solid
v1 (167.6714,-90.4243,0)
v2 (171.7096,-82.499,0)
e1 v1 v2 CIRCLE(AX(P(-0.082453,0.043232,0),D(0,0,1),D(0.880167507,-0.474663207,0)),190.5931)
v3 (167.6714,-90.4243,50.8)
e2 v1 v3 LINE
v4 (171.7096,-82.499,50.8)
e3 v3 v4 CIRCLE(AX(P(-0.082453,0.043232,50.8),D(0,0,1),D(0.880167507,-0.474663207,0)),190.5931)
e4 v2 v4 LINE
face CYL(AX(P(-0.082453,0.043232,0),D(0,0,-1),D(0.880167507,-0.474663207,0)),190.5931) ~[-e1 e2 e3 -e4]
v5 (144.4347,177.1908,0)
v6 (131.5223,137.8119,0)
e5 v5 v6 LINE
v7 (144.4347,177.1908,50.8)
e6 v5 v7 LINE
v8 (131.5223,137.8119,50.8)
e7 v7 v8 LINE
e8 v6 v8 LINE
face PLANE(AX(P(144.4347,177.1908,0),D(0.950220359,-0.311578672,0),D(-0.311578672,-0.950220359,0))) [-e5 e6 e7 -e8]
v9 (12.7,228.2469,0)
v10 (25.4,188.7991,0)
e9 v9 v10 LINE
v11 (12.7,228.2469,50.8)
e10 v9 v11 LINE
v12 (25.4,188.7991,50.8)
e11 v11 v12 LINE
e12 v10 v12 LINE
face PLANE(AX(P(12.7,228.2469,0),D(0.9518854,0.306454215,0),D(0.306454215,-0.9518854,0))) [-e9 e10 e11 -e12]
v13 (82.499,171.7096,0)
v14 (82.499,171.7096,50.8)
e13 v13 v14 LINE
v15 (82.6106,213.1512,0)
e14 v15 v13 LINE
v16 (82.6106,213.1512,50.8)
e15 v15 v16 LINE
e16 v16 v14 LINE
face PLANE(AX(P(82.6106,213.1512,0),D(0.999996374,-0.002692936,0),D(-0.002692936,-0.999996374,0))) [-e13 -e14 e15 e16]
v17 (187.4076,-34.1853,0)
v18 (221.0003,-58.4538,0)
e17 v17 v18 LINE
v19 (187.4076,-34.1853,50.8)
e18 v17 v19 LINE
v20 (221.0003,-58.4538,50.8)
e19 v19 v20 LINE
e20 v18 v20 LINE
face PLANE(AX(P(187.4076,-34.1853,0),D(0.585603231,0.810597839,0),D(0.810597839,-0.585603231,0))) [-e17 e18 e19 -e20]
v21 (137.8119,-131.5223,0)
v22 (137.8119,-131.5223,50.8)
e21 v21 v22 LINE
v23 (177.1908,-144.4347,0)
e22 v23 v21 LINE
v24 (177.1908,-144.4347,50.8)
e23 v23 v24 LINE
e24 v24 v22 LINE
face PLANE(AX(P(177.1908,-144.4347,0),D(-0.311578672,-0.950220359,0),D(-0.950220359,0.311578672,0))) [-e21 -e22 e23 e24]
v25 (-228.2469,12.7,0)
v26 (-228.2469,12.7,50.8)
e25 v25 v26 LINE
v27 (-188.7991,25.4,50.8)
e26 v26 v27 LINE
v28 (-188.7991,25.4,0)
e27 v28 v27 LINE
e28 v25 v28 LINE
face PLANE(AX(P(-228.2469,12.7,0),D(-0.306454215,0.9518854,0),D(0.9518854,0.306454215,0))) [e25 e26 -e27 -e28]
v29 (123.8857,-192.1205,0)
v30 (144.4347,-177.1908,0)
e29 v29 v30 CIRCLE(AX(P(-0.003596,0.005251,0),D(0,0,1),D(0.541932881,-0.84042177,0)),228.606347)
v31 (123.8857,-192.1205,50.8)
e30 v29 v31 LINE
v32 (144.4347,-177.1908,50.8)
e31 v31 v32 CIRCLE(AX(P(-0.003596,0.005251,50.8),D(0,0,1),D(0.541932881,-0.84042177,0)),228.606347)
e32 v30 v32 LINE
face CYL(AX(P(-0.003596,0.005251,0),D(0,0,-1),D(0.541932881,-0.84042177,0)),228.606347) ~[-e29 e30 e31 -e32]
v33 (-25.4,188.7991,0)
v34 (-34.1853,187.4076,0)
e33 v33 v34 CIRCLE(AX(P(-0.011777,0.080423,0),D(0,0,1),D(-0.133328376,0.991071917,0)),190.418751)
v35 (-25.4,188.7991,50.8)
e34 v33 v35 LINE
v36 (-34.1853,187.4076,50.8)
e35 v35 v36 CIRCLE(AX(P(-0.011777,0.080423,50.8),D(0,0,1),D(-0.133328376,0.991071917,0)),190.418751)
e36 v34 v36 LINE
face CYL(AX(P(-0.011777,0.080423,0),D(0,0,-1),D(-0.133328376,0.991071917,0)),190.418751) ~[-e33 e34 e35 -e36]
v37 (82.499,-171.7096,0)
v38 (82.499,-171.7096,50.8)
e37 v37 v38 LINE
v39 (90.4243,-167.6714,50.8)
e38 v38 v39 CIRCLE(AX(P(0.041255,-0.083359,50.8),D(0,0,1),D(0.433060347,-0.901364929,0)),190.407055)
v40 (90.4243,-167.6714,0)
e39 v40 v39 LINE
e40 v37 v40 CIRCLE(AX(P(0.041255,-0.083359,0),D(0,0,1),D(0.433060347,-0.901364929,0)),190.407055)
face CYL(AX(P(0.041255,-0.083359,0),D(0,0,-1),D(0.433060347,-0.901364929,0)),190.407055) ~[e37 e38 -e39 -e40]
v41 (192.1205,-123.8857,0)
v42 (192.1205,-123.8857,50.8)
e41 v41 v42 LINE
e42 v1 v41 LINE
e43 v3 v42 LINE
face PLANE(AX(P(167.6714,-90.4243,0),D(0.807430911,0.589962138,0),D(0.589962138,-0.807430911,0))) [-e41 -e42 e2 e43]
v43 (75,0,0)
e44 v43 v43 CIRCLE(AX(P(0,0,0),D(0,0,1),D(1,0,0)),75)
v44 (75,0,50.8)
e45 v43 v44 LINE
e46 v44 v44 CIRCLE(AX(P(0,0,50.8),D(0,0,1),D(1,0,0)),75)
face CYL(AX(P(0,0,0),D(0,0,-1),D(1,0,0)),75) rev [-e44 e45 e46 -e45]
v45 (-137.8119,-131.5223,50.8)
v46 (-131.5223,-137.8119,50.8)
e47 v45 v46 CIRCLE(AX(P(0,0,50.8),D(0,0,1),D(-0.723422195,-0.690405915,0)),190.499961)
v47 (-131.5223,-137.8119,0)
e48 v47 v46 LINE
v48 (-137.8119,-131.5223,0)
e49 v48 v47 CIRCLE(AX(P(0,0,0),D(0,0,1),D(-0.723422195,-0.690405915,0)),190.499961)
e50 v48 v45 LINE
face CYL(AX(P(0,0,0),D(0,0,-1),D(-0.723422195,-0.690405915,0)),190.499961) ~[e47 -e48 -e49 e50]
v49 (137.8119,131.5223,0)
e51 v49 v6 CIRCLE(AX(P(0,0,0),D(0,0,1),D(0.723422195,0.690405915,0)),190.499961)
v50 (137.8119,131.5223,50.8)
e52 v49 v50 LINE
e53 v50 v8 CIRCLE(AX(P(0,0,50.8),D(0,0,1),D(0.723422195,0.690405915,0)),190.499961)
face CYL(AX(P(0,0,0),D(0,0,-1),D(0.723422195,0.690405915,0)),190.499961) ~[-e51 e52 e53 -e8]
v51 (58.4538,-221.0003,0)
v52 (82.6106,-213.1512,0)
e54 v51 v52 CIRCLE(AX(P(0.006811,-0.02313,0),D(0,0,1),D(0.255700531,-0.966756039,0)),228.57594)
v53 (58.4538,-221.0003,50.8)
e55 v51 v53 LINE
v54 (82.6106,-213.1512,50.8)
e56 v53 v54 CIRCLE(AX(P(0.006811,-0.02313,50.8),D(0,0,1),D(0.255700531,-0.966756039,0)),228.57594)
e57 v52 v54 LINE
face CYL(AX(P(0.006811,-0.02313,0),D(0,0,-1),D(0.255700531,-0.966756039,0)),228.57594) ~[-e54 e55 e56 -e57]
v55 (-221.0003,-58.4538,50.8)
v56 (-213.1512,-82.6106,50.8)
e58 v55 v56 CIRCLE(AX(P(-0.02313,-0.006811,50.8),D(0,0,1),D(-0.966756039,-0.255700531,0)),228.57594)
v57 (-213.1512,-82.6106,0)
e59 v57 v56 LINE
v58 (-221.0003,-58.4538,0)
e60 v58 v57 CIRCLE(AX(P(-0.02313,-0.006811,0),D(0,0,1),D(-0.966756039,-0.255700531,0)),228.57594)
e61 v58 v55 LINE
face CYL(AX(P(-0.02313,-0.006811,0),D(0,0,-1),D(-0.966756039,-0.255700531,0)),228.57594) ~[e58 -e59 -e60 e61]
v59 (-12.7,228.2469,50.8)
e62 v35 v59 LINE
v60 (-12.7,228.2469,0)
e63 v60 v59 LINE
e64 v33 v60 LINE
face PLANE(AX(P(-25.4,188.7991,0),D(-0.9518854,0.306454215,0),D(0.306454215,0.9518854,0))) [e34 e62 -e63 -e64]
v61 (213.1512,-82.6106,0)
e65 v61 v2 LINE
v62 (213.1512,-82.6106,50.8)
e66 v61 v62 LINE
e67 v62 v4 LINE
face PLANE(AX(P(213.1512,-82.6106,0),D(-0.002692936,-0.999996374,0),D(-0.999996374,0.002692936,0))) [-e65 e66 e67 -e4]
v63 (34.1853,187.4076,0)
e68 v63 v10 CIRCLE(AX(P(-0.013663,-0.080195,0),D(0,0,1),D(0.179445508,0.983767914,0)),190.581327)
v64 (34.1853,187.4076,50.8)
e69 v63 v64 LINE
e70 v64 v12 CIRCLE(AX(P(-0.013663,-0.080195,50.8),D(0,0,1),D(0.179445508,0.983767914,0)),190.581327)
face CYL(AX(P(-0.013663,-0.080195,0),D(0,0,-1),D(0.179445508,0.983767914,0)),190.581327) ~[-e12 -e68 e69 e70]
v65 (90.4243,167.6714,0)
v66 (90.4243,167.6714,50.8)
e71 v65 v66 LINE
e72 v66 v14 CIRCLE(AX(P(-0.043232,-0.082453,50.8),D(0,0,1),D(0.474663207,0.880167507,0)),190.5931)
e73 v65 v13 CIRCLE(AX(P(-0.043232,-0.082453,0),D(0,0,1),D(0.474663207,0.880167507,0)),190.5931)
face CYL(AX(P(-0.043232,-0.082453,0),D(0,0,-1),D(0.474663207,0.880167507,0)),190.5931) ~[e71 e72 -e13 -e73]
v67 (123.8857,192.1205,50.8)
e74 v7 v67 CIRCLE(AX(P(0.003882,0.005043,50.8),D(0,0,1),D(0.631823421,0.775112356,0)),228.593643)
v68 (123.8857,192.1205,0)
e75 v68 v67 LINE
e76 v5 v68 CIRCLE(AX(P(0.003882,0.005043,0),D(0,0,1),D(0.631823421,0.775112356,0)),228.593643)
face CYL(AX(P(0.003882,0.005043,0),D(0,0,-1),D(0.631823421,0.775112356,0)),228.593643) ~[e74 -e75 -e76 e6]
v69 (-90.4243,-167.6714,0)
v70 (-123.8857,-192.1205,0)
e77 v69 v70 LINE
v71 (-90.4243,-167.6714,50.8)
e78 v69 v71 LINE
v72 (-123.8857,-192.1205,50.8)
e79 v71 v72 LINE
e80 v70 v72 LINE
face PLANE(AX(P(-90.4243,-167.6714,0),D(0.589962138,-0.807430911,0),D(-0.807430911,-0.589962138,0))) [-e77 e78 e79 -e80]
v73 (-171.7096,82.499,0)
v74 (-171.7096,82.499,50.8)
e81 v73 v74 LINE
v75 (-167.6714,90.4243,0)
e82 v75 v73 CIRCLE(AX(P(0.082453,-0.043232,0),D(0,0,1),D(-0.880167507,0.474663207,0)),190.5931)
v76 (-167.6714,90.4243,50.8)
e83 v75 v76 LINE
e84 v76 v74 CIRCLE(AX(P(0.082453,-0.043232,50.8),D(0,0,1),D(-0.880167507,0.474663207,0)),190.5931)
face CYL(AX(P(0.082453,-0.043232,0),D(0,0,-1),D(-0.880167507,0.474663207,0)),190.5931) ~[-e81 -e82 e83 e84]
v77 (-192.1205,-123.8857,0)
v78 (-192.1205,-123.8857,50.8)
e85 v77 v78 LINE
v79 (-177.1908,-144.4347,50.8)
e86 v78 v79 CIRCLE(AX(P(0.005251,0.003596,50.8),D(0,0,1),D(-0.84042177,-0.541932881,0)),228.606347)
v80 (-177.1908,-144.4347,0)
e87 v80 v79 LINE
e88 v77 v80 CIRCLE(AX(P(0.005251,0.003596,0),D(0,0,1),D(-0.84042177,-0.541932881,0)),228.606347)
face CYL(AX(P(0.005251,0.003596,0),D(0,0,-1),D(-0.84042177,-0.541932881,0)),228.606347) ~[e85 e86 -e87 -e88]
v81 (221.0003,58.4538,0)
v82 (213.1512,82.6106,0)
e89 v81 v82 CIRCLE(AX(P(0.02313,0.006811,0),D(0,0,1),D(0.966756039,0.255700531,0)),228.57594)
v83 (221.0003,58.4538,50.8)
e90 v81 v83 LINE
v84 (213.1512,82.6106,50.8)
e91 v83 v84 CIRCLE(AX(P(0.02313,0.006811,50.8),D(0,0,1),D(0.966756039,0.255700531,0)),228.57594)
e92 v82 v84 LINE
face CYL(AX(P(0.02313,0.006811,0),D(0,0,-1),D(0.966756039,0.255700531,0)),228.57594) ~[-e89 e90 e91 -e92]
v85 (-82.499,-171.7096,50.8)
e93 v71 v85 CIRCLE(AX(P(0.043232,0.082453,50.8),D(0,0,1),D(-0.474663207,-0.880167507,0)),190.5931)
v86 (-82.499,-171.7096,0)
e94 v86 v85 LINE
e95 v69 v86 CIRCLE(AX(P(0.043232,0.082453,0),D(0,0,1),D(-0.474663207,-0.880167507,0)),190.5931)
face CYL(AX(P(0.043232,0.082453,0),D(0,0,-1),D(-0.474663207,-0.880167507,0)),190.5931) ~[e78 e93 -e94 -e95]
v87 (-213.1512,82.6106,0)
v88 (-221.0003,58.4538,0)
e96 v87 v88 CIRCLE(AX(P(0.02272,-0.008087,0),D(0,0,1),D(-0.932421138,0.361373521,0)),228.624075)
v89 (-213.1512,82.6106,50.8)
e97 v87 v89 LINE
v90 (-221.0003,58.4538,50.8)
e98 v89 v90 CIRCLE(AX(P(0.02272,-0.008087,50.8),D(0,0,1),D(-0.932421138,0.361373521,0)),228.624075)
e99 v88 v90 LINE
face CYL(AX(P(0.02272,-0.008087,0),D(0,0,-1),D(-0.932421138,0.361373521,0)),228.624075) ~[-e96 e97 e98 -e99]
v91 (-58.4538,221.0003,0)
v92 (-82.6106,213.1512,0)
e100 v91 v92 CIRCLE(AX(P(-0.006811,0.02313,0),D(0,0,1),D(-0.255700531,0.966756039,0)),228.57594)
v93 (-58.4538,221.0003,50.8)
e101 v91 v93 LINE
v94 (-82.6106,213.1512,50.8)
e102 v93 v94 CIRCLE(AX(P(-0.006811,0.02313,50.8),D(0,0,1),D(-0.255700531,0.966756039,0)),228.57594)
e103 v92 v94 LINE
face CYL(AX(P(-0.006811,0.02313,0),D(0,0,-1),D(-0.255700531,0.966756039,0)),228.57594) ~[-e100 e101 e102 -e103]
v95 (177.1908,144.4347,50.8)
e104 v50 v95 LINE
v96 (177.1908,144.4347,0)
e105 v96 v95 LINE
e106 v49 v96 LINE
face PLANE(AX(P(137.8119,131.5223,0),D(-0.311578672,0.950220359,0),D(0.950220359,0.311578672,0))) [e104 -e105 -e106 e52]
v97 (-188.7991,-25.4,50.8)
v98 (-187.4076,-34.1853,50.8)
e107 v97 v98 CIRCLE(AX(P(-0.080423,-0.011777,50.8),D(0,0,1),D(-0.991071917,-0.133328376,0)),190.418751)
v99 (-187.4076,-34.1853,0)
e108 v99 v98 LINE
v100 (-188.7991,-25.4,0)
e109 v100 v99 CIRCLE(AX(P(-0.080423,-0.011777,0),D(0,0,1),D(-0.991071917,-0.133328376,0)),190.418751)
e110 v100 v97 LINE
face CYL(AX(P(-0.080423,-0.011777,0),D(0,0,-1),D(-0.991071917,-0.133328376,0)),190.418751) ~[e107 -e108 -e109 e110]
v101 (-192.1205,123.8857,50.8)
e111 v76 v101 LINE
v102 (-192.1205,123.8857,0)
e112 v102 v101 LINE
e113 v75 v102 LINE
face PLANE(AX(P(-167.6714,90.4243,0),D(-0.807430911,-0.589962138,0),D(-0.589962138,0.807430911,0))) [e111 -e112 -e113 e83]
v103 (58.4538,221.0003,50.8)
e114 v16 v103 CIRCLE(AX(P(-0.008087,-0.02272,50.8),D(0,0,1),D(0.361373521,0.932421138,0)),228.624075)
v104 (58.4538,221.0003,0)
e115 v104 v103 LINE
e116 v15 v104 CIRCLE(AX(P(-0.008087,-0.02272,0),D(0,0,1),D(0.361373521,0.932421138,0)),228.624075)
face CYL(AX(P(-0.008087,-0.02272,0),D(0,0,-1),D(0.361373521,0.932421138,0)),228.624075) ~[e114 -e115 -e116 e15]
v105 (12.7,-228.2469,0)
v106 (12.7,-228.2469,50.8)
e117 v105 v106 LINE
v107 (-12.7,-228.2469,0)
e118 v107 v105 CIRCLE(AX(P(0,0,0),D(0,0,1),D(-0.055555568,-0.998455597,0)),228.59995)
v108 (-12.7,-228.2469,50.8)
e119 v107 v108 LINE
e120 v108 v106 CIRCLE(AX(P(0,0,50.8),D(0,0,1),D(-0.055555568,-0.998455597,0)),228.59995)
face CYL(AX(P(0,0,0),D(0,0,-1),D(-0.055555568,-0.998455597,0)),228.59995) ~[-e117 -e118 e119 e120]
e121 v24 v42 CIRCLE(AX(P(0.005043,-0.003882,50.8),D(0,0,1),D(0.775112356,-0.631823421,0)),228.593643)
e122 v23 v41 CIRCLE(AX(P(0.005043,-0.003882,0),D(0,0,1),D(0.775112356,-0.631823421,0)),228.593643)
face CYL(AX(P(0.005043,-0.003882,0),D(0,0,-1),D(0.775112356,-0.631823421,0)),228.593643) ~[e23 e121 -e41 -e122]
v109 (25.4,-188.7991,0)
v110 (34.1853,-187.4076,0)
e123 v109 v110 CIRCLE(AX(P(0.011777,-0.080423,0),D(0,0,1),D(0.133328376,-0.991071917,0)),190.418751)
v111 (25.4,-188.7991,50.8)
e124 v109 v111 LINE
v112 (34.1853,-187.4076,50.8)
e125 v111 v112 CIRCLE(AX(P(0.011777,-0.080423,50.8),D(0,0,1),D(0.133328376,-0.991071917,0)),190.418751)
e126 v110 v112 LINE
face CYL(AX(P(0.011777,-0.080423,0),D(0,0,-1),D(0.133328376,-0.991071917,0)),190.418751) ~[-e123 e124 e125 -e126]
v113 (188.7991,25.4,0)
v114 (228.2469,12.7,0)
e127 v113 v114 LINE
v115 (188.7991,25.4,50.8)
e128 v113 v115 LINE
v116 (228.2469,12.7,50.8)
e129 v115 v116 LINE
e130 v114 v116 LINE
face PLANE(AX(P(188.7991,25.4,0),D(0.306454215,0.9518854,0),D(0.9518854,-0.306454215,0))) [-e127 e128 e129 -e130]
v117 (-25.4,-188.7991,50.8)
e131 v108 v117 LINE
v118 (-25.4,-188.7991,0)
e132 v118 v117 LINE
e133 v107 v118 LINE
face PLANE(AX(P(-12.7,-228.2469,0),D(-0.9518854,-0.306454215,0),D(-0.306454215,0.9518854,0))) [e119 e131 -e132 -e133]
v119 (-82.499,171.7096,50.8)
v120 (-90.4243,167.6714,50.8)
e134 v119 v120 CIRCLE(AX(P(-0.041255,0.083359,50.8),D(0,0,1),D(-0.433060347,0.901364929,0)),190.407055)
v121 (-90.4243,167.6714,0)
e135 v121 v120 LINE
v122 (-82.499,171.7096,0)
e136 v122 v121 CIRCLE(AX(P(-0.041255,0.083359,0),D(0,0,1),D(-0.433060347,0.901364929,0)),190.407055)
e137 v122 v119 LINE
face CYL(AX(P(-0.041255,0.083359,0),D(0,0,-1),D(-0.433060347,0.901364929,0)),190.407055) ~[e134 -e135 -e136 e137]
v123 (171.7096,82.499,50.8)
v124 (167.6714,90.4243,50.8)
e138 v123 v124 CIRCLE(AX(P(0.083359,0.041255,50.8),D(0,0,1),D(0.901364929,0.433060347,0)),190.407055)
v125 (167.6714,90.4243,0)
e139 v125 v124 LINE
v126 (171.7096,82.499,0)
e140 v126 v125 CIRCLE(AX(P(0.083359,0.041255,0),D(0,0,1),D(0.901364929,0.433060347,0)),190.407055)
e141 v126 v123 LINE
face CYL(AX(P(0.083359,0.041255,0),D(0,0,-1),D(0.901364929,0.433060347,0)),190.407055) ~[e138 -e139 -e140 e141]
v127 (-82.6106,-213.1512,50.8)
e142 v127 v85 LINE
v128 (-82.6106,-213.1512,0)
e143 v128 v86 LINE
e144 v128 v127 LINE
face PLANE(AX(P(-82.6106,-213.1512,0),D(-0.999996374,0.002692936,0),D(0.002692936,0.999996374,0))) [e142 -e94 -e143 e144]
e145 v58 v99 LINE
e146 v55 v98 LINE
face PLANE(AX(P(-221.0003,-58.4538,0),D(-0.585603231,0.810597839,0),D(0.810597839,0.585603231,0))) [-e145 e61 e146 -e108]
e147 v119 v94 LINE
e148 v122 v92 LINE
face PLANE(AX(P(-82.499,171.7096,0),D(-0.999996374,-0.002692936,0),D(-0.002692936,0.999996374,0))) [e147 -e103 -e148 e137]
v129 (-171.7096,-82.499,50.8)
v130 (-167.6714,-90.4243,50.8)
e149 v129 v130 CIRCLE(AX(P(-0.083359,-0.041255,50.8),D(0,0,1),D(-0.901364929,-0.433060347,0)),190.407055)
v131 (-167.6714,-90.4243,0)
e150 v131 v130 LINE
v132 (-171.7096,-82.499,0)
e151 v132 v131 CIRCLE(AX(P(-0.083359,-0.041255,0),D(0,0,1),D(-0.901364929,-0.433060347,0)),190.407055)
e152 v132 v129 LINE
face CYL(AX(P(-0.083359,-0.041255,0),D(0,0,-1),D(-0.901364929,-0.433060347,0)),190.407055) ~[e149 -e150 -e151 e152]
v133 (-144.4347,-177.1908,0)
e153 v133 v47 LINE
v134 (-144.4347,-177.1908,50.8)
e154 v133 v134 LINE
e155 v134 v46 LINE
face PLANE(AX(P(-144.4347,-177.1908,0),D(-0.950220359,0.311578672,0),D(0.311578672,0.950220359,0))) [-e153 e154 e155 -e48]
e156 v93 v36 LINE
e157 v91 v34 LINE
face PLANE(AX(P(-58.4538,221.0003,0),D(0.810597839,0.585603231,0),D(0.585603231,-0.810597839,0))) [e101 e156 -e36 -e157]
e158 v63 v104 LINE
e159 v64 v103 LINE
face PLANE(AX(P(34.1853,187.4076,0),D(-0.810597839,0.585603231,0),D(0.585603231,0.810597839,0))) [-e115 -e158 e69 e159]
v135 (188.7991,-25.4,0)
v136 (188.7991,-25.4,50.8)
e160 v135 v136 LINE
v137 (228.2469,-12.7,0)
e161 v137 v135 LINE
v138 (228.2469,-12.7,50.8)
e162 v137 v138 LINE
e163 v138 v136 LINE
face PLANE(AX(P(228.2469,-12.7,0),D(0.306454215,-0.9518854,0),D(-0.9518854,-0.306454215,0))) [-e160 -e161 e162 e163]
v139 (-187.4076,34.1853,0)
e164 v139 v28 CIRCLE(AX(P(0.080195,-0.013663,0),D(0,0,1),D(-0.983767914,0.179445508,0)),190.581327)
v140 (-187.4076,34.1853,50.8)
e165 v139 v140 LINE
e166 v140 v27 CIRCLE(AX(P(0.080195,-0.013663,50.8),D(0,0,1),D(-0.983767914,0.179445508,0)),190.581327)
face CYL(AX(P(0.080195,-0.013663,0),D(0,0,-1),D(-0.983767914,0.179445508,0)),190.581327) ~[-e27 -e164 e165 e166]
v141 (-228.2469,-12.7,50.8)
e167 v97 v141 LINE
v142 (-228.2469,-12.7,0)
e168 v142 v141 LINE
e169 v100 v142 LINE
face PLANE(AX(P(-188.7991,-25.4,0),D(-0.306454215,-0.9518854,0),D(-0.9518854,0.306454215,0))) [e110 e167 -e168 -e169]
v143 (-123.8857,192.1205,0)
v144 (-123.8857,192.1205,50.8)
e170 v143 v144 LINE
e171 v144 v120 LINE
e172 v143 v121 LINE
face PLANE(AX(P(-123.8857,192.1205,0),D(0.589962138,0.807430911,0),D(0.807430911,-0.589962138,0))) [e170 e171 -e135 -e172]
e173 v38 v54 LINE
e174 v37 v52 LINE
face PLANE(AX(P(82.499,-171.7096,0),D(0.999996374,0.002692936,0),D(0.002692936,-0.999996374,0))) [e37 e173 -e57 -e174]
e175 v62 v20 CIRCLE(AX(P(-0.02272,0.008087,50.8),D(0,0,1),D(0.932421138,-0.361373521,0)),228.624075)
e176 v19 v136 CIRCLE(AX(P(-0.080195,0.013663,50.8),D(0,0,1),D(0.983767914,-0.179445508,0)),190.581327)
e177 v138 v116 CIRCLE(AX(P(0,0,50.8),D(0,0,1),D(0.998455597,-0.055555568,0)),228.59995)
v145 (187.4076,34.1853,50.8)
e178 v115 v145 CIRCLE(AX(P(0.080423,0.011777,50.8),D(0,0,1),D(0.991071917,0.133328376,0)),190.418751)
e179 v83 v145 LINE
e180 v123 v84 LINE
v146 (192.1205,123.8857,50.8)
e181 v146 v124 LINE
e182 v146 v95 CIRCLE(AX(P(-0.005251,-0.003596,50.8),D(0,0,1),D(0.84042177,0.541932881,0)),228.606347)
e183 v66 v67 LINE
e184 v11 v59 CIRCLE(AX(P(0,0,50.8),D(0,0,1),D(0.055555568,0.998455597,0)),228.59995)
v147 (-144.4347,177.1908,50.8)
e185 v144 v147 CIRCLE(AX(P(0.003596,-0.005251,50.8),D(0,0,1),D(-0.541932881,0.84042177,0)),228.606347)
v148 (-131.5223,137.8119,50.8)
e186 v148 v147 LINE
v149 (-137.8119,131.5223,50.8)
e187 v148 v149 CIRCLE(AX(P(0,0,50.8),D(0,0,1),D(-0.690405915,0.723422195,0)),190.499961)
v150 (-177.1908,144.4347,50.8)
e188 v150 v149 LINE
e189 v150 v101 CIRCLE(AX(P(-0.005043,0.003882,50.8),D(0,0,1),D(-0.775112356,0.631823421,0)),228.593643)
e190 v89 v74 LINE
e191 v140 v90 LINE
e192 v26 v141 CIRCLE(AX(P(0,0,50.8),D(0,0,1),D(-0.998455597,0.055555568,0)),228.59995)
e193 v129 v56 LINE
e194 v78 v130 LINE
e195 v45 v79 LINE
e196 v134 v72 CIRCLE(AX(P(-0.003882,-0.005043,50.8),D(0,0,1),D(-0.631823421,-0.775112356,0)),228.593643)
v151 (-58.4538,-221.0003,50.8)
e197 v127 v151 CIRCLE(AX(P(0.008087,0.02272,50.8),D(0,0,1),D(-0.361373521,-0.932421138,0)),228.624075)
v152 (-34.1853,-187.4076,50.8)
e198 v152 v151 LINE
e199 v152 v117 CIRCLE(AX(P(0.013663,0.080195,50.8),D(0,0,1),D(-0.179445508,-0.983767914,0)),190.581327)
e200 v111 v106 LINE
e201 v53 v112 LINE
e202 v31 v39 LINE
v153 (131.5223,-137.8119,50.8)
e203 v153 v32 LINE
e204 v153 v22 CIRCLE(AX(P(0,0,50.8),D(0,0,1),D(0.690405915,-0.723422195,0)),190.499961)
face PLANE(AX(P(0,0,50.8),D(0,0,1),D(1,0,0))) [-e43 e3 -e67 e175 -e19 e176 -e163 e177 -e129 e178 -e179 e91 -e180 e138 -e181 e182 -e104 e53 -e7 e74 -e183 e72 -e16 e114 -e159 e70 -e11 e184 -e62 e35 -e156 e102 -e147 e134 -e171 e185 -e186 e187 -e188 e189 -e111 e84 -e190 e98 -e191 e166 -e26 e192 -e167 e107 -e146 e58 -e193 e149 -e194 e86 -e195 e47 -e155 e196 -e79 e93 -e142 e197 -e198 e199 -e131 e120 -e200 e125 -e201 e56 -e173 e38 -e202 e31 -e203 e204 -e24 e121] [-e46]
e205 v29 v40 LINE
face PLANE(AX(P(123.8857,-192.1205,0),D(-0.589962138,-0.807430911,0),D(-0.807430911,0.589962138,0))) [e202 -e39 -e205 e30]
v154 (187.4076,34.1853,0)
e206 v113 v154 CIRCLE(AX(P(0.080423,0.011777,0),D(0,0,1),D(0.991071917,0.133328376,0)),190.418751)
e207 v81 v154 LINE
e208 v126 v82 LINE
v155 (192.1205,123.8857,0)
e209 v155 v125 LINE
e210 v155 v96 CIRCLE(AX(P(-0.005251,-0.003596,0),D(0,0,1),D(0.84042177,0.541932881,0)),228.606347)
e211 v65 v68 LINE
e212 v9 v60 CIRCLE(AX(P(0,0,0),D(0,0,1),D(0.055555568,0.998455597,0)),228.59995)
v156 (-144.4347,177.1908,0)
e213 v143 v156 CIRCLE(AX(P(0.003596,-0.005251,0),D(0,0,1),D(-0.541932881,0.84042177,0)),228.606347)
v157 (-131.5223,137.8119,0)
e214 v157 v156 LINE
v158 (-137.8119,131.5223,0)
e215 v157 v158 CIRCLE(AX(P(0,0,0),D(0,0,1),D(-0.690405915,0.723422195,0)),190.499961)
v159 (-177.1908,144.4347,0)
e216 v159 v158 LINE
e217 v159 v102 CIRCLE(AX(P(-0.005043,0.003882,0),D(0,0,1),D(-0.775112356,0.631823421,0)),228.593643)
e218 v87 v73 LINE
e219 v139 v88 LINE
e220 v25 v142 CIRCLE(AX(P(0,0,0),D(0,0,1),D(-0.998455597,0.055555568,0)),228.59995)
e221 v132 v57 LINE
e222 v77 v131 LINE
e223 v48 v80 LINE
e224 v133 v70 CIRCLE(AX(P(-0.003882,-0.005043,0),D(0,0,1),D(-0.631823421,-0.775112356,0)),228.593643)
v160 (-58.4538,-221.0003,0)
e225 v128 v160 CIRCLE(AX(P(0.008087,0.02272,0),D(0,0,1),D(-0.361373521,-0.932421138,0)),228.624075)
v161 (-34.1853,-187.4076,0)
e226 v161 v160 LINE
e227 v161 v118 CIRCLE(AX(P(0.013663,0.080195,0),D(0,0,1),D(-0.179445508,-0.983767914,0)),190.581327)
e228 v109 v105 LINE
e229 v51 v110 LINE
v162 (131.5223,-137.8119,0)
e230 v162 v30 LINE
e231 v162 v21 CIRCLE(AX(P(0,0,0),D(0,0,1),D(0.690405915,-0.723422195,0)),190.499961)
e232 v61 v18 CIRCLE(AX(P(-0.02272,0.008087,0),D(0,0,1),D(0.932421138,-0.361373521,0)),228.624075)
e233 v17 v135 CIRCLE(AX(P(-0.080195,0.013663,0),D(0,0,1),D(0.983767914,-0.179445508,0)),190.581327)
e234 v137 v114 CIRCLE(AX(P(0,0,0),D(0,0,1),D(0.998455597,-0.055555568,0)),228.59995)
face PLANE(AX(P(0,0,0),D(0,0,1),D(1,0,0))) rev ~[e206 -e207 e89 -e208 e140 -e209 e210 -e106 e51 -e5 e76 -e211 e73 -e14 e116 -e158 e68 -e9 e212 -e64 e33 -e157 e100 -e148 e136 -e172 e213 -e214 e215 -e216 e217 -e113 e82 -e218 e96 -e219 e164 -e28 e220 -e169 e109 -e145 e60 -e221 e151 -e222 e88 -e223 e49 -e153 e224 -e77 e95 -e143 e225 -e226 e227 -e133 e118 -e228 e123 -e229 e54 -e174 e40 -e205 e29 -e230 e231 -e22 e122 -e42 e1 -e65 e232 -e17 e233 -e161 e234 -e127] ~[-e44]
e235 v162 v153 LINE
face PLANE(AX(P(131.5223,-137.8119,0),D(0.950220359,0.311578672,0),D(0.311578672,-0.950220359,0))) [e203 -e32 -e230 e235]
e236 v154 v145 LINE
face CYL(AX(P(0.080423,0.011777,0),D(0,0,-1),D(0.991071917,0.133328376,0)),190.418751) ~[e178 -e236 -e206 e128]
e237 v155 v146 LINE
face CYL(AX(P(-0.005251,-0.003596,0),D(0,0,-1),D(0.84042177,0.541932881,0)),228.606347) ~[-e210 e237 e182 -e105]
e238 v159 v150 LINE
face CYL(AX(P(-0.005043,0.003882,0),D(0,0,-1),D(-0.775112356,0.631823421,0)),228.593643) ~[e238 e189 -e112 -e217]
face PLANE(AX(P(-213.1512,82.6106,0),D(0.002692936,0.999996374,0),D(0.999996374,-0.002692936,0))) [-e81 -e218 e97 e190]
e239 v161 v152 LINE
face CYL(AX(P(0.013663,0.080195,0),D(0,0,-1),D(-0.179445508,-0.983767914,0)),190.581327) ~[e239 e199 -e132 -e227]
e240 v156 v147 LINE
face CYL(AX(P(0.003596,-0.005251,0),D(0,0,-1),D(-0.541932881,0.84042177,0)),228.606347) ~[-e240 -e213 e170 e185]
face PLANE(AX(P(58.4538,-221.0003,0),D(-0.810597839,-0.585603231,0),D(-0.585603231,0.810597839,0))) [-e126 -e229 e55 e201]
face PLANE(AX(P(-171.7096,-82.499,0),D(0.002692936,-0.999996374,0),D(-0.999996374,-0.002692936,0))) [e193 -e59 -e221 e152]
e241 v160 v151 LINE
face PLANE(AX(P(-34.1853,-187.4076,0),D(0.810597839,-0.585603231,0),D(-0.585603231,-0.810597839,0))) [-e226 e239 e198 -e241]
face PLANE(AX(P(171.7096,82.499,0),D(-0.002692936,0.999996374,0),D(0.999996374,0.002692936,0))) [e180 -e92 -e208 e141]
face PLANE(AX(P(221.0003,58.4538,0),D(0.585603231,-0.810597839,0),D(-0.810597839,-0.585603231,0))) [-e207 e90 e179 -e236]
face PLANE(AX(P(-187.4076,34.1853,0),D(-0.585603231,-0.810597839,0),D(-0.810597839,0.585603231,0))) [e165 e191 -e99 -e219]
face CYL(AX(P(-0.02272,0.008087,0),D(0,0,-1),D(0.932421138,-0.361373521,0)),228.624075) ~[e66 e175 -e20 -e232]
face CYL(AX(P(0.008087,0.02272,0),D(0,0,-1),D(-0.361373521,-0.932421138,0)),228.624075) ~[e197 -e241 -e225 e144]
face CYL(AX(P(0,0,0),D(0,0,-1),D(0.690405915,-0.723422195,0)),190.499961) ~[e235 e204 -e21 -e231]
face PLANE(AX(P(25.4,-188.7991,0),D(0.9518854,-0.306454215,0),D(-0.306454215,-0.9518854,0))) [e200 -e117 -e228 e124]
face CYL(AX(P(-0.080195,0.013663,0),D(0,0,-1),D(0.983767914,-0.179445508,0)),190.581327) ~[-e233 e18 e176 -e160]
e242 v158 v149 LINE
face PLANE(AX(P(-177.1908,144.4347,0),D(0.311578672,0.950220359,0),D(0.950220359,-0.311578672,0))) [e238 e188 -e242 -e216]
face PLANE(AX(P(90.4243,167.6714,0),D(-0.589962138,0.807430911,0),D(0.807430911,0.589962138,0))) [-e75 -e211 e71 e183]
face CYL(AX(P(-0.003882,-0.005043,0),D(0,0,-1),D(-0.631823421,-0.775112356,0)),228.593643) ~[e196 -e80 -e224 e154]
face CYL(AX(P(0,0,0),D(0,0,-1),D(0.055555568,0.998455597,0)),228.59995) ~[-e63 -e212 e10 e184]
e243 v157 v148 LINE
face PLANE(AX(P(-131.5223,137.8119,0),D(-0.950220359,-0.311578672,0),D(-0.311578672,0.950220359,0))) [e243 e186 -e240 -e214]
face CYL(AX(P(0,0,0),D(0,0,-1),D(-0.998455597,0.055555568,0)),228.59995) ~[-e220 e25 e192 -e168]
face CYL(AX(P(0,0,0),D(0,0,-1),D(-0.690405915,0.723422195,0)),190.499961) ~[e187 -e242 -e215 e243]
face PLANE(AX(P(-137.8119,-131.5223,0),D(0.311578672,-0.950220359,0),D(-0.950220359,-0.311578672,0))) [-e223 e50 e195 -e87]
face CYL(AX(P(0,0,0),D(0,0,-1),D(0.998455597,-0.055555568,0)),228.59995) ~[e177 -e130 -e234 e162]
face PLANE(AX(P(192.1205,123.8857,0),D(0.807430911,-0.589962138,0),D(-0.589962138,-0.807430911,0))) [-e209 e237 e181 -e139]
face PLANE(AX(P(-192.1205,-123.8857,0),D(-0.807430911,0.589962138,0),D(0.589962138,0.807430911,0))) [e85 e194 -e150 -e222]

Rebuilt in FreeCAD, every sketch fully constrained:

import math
import FreeCAD as App
import Part
import Sketcher
Q = App.Units.Quantity

doc = App.newDocument("Part")
params = doc.addObject("Spreadsheet::Sheet", "Params")
for row, (alias, value) in enumerate([
    ("sketch1_radius", "9 in"),
    ("sketch1_radius2", "7.5 in"),
    ("pad1_length", "2 in"),
], start=1):
    params.set(f"A{row}", alias)
    params.set(f"B{row}", "=" + value)
    params.setAlias(f"B{row}", alias)

body = doc.addObject("PartDesign::Body", "Body")

# Sketch on XY plane
sketch1 = doc.addObject("Sketcher::SketchObject", "Sketch")
body.addObject(sketch1)
sketch1.AttachmentSupport = (doc.XY_Plane, [""])
sketch1.MapMode = "FlatFace"
sketch1.addGeometry([
    Part.LineSegment(App.Vector(25.4, 188.7991, 0), App.Vector(12.7, 228.2469, 0)),  # 0
    Part.ArcOfCircle(Part.Circle(App.Vector(0, 0, 0), App.Vector(0, 0, 1), 228.59995), math.radians(86.815261), math.radians(93.184739)),  # 1
    Part.LineSegment(App.Vector(-12.7, 228.2469, 0), App.Vector(-25.4, 188.7991, 0)),  # 2
    Part.ArcOfCircle(Part.Circle(App.Vector(-0.011777, 0.080423, 0), App.Vector(0, 0, 1), 190.418751), math.radians(97.661969), math.radians(100.338606)),  # 3
    Part.LineSegment(App.Vector(-34.1853, 187.4076, 0), App.Vector(-58.4538, 221.0003, 0)),  # 4
    Part.ArcOfCircle(Part.Circle(App.Vector(-0.006811, 0.02313, 0), App.Vector(0, 0, 1), 228.57594), math.radians(104.815099), math.radians(111.185244)),  # 5
    Part.LineSegment(App.Vector(-82.6106, 213.1512, 0), App.Vector(-82.499, 171.7096, 0)),  # 6
    Part.ArcOfCircle(Part.Circle(App.Vector(-0.041255, 0.083359, 0), App.Vector(0, 0, 1), 190.407055), math.radians(115.661935), math.radians(118.33873)),  # 7
    Part.LineSegment(App.Vector(-90.4243, 167.6714, 0), App.Vector(-123.8857, 192.1205, 0)),  # 8
    Part.ArcOfCircle(Part.Circle(App.Vector(0.003596, -0.005251, 0), App.Vector(0, 0, 1), 228.606347), math.radians(122.815316), math.radians(129.184603)),  # 9
    Part.LineSegment(App.Vector(-144.4347, 177.1908, 0), App.Vector(-131.5223, 137.8119, 0)),  # 10
    Part.ArcOfCircle(Part.Circle(App.Vector(0, 0, 0), App.Vector(0, 0, 1), 190.499961), math.radians(133.662249), math.radians(136.337751)),  # 11
    Part.LineSegment(App.Vector(-137.8119, 131.5223, 0), App.Vector(-177.1908, 144.4347, 0)),  # 12
    Part.ArcOfCircle(Part.Circle(App.Vector(-0.005043, 0.003882, 0), App.Vector(0, 0, 1), 228.593643), math.radians(140.81522), math.radians(147.184862)),  # 13
    Part.LineSegment(App.Vector(-192.1205, 123.8857, 0), App.Vector(-167.6714, 90.4243, 0)),  # 14
    Part.ArcOfCircle(Part.Circle(App.Vector(0.082453, -0.043232, 0), App.Vector(0, 0, 1), 190.5931), math.radians(151.662576), math.radians(154.336758)),  # 15
    Part.LineSegment(App.Vector(-171.7096, 82.499, 0), App.Vector(-213.1512, 82.6106, 0)),  # 16
    Part.ArcOfCircle(Part.Circle(App.Vector(0.02272, -0.008087, 0), App.Vector(0, 0, 1), 228.624075), math.radians(158.815427), math.radians(165.18423)),  # 17
    Part.LineSegment(App.Vector(-221.0003, 58.4538, 0), App.Vector(-187.4076, 34.1853, 0)),  # 18
    Part.ArcOfCircle(Part.Circle(App.Vector(0.080195, -0.013663, 0), App.Vector(0, 0, 1), 190.581327), math.radians(169.662536), math.radians(172.336889)),  # 19
    Part.LineSegment(App.Vector(-188.7991, 25.4, 0), App.Vector(-228.2469, 12.7, 0)),  # 20
    Part.ArcOfCircle(Part.Circle(App.Vector(0, 0, 0), App.Vector(0, 0, 1), 228.59995), math.radians(176.815261), math.radians(183.184739)),  # 21
    Part.LineSegment(App.Vector(-228.2469, -12.7, 0), App.Vector(-188.7991, -25.4, 0)),  # 22
    Part.ArcOfCircle(Part.Circle(App.Vector(-0.080423, -0.011777, 0), App.Vector(0, 0, 1), 190.418751), math.radians(-172.338031), math.radians(-169.661394)),  # 23
    Part.LineSegment(App.Vector(-187.4076, -34.1853, 0), App.Vector(-221.0003, -58.4538, 0)),  # 24
    Part.ArcOfCircle(Part.Circle(App.Vector(-0.02313, -0.006811, 0), App.Vector(0, 0, 1), 228.57594), math.radians(-165.184901), math.radians(-158.814756)),  # 25
    Part.LineSegment(App.Vector(-213.1512, -82.6106, 0), App.Vector(-171.7096, -82.499, 0)),  # 26
    Part.ArcOfCircle(Part.Circle(App.Vector(-0.083359, -0.041255, 0), App.Vector(0, 0, 1), 190.407055), math.radians(-154.338065), math.radians(-151.66127)),  # 27
    Part.LineSegment(App.Vector(-167.6714, -90.4243, 0), App.Vector(-192.1205, -123.8857, 0)),  # 28
    Part.ArcOfCircle(Part.Circle(App.Vector(0.005251, 0.003596, 0), App.Vector(0, 0, 1), 228.606347), math.radians(-147.184684), math.radians(-140.815397)),  # 29
    Part.LineSegment(App.Vector(-177.1908, -144.4347, 0), App.Vector(-137.8119, -131.5223, 0)),  # 30
    Part.ArcOfCircle(Part.Circle(App.Vector(0, 0, 0), App.Vector(0, 0, 1), 190.499961), math.radians(-136.337751), math.radians(-133.662249)),  # 31
    Part.LineSegment(App.Vector(-131.5223, -137.8119, 0), App.Vector(-144.4347, -177.1908, 0)),  # 32
    Part.ArcOfCircle(Part.Circle(App.Vector(-0.003882, -0.005043, 0), App.Vector(0, 0, 1), 228.593643), math.radians(-129.18478), math.radians(-122.815138)),  # 33
    Part.LineSegment(App.Vector(-123.8857, -192.1205, 0), App.Vector(-90.4243, -167.6714, 0)),  # 34
    Part.ArcOfCircle(Part.Circle(App.Vector(0.043232, 0.082453, 0), App.Vector(0, 0, 1), 190.5931), math.radians(-118.337424), math.radians(-115.663242)),  # 35
    Part.LineSegment(App.Vector(-82.499, -171.7096, 0), App.Vector(-82.6106, -213.1512, 0)),  # 36
    Part.ArcOfCircle(Part.Circle(App.Vector(0.008087, 0.02272, 0), App.Vector(0, 0, 1), 228.624075), math.radians(-111.184573), math.radians(-104.81577)),  # 37
    Part.LineSegment(App.Vector(-58.4538, -221.0003, 0), App.Vector(-34.1853, -187.4076, 0)),  # 38
    Part.ArcOfCircle(Part.Circle(App.Vector(0.013663, 0.080195, 0), App.Vector(0, 0, 1), 190.581327), math.radians(-100.337464), math.radians(-97.663111)),  # 39
    Part.LineSegment(App.Vector(-25.4, -188.7991, 0), App.Vector(-12.7, -228.2469, 0)),  # 40
    Part.ArcOfCircle(Part.Circle(App.Vector(0, 0, 0), App.Vector(0, 0, 1), 228.59995), math.radians(-93.184739), math.radians(-86.815261)),  # 41
    Part.LineSegment(App.Vector(12.7, -228.2469, 0), App.Vector(25.4, -188.7991, 0)),  # 42
    Part.ArcOfCircle(Part.Circle(App.Vector(0.011777, -0.080423, 0), App.Vector(0, 0, 1), 190.418751), math.radians(-82.338031), math.radians(-79.661394)),  # 43
    Part.LineSegment(App.Vector(34.1853, -187.4076, 0), App.Vector(58.4538, -221.0003, 0)),  # 44
    Part.ArcOfCircle(Part.Circle(App.Vector(0.006811, -0.02313, 0), App.Vector(0, 0, 1), 228.57594), math.radians(-75.184901), math.radians(-68.814756)),  # 45
    Part.LineSegment(App.Vector(82.6106, -213.1512, 0), App.Vector(82.499, -171.7096, 0)),  # 46
    Part.ArcOfCircle(Part.Circle(App.Vector(0.041255, -0.083359, 0), App.Vector(0, 0, 1), 190.407055), math.radians(-64.338065), math.radians(-61.66127)),  # 47
    Part.LineSegment(App.Vector(90.4243, -167.6714, 0), App.Vector(123.8857, -192.1205, 0)),  # 48
    Part.ArcOfCircle(Part.Circle(App.Vector(-0.003596, 0.005251, 0), App.Vector(0, 0, 1), 228.606347), math.radians(-57.184684), math.radians(-50.815397)),  # 49
    Part.LineSegment(App.Vector(144.4347, -177.1908, 0), App.Vector(131.5223, -137.8119, 0)),  # 50
    Part.ArcOfCircle(Part.Circle(App.Vector(0, 0, 0), App.Vector(0, 0, 1), 190.499961), math.radians(-46.337751), math.radians(-43.662249)),  # 51
    Part.LineSegment(App.Vector(137.8119, -131.5223, 0), App.Vector(177.1908, -144.4347, 0)),  # 52
    Part.ArcOfCircle(Part.Circle(App.Vector(0.005043, -0.003882, 0), App.Vector(0, 0, 1), 228.593643), math.radians(-39.18478), math.radians(-32.815138)),  # 53
    Part.LineSegment(App.Vector(192.1205, -123.8857, 0), App.Vector(167.6714, -90.4243, 0)),  # 54
    Part.ArcOfCircle(Part.Circle(App.Vector(-0.082453, 0.043232, 0), App.Vector(0, 0, 1), 190.5931), math.radians(-28.337424), math.radians(-25.663242)),  # 55
    Part.LineSegment(App.Vector(171.7096, -82.499, 0), App.Vector(213.1512, -82.6106, 0)),  # 56
    Part.ArcOfCircle(Part.Circle(App.Vector(-0.02272, 0.008087, 0), App.Vector(0, 0, 1), 228.624075), math.radians(-21.184573), math.radians(-14.81577)),  # 57
    Part.LineSegment(App.Vector(221.0003, -58.4538, 0), App.Vector(187.4076, -34.1853, 0)),  # 58
    Part.ArcOfCircle(Part.Circle(App.Vector(-0.080195, 0.013663, 0), App.Vector(0, 0, 1), 190.581327), math.radians(-10.337464), math.radians(-7.663111)),  # 59
    Part.LineSegment(App.Vector(188.7991, -25.4, 0), App.Vector(228.2469, -12.7, 0)),  # 60
    Part.ArcOfCircle(Part.Circle(App.Vector(0, 0, 0), App.Vector(0, 0, 1), 228.59995), math.radians(-3.184739), math.radians(3.184739)),  # 61
    Part.LineSegment(App.Vector(228.2469, 12.7, 0), App.Vector(188.7991, 25.4, 0)),  # 62
    Part.ArcOfCircle(Part.Circle(App.Vector(0.080423, 0.011777, 0), App.Vector(0, 0, 1), 190.418751), math.radians(7.661969), math.radians(10.338606)),  # 63
    Part.LineSegment(App.Vector(187.4076, 34.1853, 0), App.Vector(221.0003, 58.4538, 0)),  # 64
    Part.ArcOfCircle(Part.Circle(App.Vector(0.02313, 0.006811, 0), App.Vector(0, 0, 1), 228.57594), math.radians(14.815099), math.radians(21.185244)),  # 65
    Part.LineSegment(App.Vector(213.1512, 82.6106, 0), App.Vector(171.7096, 82.499, 0)),  # 66
    Part.ArcOfCircle(Part.Circle(App.Vector(0.083359, 0.041255, 0), App.Vector(0, 0, 1), 190.407055), math.radians(25.661935), math.radians(28.33873)),  # 67
    Part.LineSegment(App.Vector(167.6714, 90.4243, 0), App.Vector(192.1205, 123.8857, 0)),  # 68
    Part.ArcOfCircle(Part.Circle(App.Vector(-0.005251, -0.003596, 0), App.Vector(0, 0, 1), 228.606347), math.radians(32.815316), math.radians(39.184603)),  # 69
    Part.LineSegment(App.Vector(177.1908, 144.4347, 0), App.Vector(137.8119, 131.5223, 0)),  # 70
    Part.ArcOfCircle(Part.Circle(App.Vector(0, 0, 0), App.Vector(0, 0, 1), 190.499961), math.radians(43.662249), math.radians(46.337751)),  # 71
    Part.LineSegment(App.Vector(131.5223, 137.8119, 0), App.Vector(144.4347, 177.1908, 0)),  # 72
    Part.ArcOfCircle(Part.Circle(App.Vector(0.003882, 0.005043, 0), App.Vector(0, 0, 1), 228.593643), math.radians(50.81522), math.radians(57.184862)),  # 73
    Part.LineSegment(App.Vector(123.8857, 192.1205, 0), App.Vector(90.4243, 167.6714, 0)),  # 74
    Part.ArcOfCircle(Part.Circle(App.Vector(-0.043232, -0.082453, 0), App.Vector(0, 0, 1), 190.5931), math.radians(61.662576), math.radians(64.336758)),  # 75
    Part.LineSegment(App.Vector(82.499, 171.7096, 0), App.Vector(82.6106, 213.1512, 0)),  # 76
    Part.ArcOfCircle(Part.Circle(App.Vector(-0.008087, -0.02272, 0), App.Vector(0, 0, 1), 228.624075), math.radians(68.815427), math.radians(75.18423)),  # 77
    Part.LineSegment(App.Vector(58.4538, 221.0003, 0), App.Vector(34.1853, 187.4076, 0)),  # 78
    Part.ArcOfCircle(Part.Circle(App.Vector(-0.013663, -0.080195, 0), App.Vector(0, 0, 1), 190.581327), math.radians(79.662536), math.radians(82.336889)),  # 79
    Part.Circle(App.Vector(0, 0, 0), App.Vector(0, 0, 1), 75),  # 80
], False)
sketch1.addConstraint([
    Sketcher.Constraint("Coincident", 0, 2, 1, 1),
    Sketcher.Constraint("Coincident", 1, 2, 2, 1),
    Sketcher.Constraint("Coincident", 2, 2, 3, 1),
    Sketcher.Constraint("Coincident", 3, 2, 4, 1),
    Sketcher.Constraint("Coincident", 4, 2, 5, 1),
    Sketcher.Constraint("Coincident", 5, 2, 6, 1),
    Sketcher.Constraint("Coincident", 6, 2, 7, 1),
    Sketcher.Constraint("Coincident", 7, 2, 8, 1),
    Sketcher.Constraint("Coincident", 8, 2, 9, 1),
    Sketcher.Constraint("Coincident", 9, 2, 10, 1),
    Sketcher.Constraint("Coincident", 10, 2, 11, 1),
    Sketcher.Constraint("Coincident", 11, 2, 12, 1),
    Sketcher.Constraint("Coincident", 12, 2, 13, 1),
    Sketcher.Constraint("Coincident", 13, 2, 14, 1),
    Sketcher.Constraint("Coincident", 14, 2, 15, 1),
    Sketcher.Constraint("Coincident", 15, 2, 16, 1),
    Sketcher.Constraint("Coincident", 16, 2, 17, 1),
    Sketcher.Constraint("Coincident", 17, 2, 18, 1),
    Sketcher.Constraint("Coincident", 18, 2, 19, 1),
    Sketcher.Constraint("Coincident", 19, 2, 20, 1),
    Sketcher.Constraint("Coincident", 20, 2, 21, 1),
    Sketcher.Constraint("Coincident", 21, 2, 22, 1),
    Sketcher.Constraint("Coincident", 22, 2, 23, 1),
    Sketcher.Constraint("Coincident", 23, 2, 24, 1),
    Sketcher.Constraint("Coincident", 24, 2, 25, 1),
    Sketcher.Constraint("Coincident", 25, 2, 26, 1),
    Sketcher.Constraint("Coincident", 26, 2, 27, 1),
    Sketcher.Constraint("Coincident", 27, 2, 28, 1),
    Sketcher.Constraint("Coincident", 28, 2, 29, 1),
    Sketcher.Constraint("Coincident", 29, 2, 30, 1),
    Sketcher.Constraint("Coincident", 30, 2, 31, 1),
    Sketcher.Constraint("Coincident", 31, 2, 32, 1),
    Sketcher.Constraint("Coincident", 32, 2, 33, 1),
    Sketcher.Constraint("Coincident", 33, 2, 34, 1),
    Sketcher.Constraint("Coincident", 34, 2, 35, 1),
    Sketcher.Constraint("Coincident", 35, 2, 36, 1),
    Sketcher.Constraint("Coincident", 36, 2, 37, 1),
    Sketcher.Constraint("Coincident", 37, 2, 38, 1),
    Sketcher.Constraint("Coincident", 38, 2, 39, 1),
    Sketcher.Constraint("Coincident", 39, 2, 40, 1),
    Sketcher.Constraint("Coincident", 40, 2, 41, 1),
    Sketcher.Constraint("Coincident", 41, 2, 42, 1),
    Sketcher.Constraint("Coincident", 42, 2, 43, 1),
    Sketcher.Constraint("Coincident", 43, 2, 44, 1),
    Sketcher.Constraint("Coincident", 44, 2, 45, 1),
    Sketcher.Constraint("Coincident", 45, 2, 46, 1),
    Sketcher.Constraint("Coincident", 46, 2, 47, 1),
    Sketcher.Constraint("Coincident", 47, 2, 48, 1),
    Sketcher.Constraint("Coincident", 48, 2, 49, 1),
    Sketcher.Constraint("Coincident", 49, 2, 50, 1),
    Sketcher.Constraint("Coincident", 50, 2, 51, 1),
    Sketcher.Constraint("Coincident", 51, 2, 52, 1),
    Sketcher.Constraint("Coincident", 52, 2, 53, 1),
    Sketcher.Constraint("Coincident", 53, 2, 54, 1),
    Sketcher.Constraint("Coincident", 54, 2, 55, 1),
    Sketcher.Constraint("Coincident", 55, 2, 56, 1),
    Sketcher.Constraint("Coincident", 56, 2, 57, 1),
    Sketcher.Constraint("Coincident", 57, 2, 58, 1),
    Sketcher.Constraint("Coincident", 58, 2, 59, 1),
    Sketcher.Constraint("Coincident", 59, 2, 60, 1),
    Sketcher.Constraint("Coincident", 60, 2, 61, 1),
    Sketcher.Constraint("Coincident", 61, 2, 62, 1),
    Sketcher.Constraint("Coincident", 62, 2, 63, 1),
    Sketcher.Constraint("Coincident", 63, 2, 64, 1),
    Sketcher.Constraint("Coincident", 64, 2, 65, 1),
    Sketcher.Constraint("Coincident", 65, 2, 66, 1),
    Sketcher.Constraint("Coincident", 66, 2, 67, 1),
    Sketcher.Constraint("Coincident", 67, 2, 68, 1),
    Sketcher.Constraint("Coincident", 68, 2, 69, 1),
    Sketcher.Constraint("Coincident", 69, 2, 70, 1),
    Sketcher.Constraint("Coincident", 70, 2, 71, 1),
    Sketcher.Constraint("Coincident", 71, 2, 72, 1),
    Sketcher.Constraint("Coincident", 72, 2, 73, 1),
    Sketcher.Constraint("Coincident", 73, 2, 74, 1),
    Sketcher.Constraint("Coincident", 74, 2, 75, 1),
    Sketcher.Constraint("Coincident", 75, 2, 76, 1),
    Sketcher.Constraint("Coincident", 76, 2, 77, 1),
    Sketcher.Constraint("Coincident", 77, 2, 78, 1),
    Sketcher.Constraint("Coincident", 78, 2, 79, 1),
    Sketcher.Constraint("Coincident", 79, 2, 0, 1),
    Sketcher.Constraint("Coincident", 1, 3, -1, 1),
    Sketcher.Constraint("Coincident", 11, 3, -1, 1),
    Sketcher.Constraint("Coincident", 21, 3, -1, 1),
    Sketcher.Constraint("Coincident", 31, 3, -1, 1),
    Sketcher.Constraint("Coincident", 41, 3, -1, 1),
    Sketcher.Constraint("Coincident", 51, 3, -1, 1),
    Sketcher.Constraint("Coincident", 61, 3, -1, 1),
    Sketcher.Constraint("Coincident", 71, 3, -1, 1),
    Sketcher.Constraint("Coincident", 80, 3, -1, 1),
    Sketcher.Constraint("Equal", 1, 21),
    Sketcher.Constraint("Equal", 3, 23),
    Sketcher.Constraint("Equal", 5, 25),
    Sketcher.Constraint("Equal", 7, 27),
    Sketcher.Constraint("Equal", 9, 29),
    Sketcher.Constraint("Equal", 11, 31),
    Sketcher.Constraint("Equal", 13, 33),
    Sketcher.Constraint("Equal", 15, 35),
    Sketcher.Constraint("Equal", 17, 37),
    Sketcher.Constraint("Equal", 19, 39),
    Sketcher.Constraint("Equal", 21, 41),
    Sketcher.Constraint("Equal", 23, 43),
    Sketcher.Constraint("Equal", 25, 45),
    Sketcher.Constraint("Equal", 27, 47),
    Sketcher.Constraint("Equal", 29, 49),
    Sketcher.Constraint("Equal", 31, 51),
    Sketcher.Constraint("Equal", 33, 53),
    Sketcher.Constraint("Equal", 35, 55),
    Sketcher.Constraint("Equal", 37, 57),
    Sketcher.Constraint("Equal", 39, 59),
    Sketcher.Constraint("Equal", 41, 61),
    Sketcher.Constraint("Equal", 43, 63),
    Sketcher.Constraint("Equal", 45, 65),
    Sketcher.Constraint("Equal", 47, 67),
    Sketcher.Constraint("Equal", 49, 69),
    Sketcher.Constraint("Equal", 51, 71),
    Sketcher.Constraint("Equal", 53, 73),
    Sketcher.Constraint("Equal", 55, 75),
    Sketcher.Constraint("Equal", 57, 77),
    Sketcher.Constraint("Equal", 59, 79),
    Sketcher.Constraint("Symmetric", 3, 3, 43, 3, -1, 1),
    Sketcher.Constraint("Symmetric", 5, 3, 45, 3, -1, 1),
    Sketcher.Constraint("Symmetric", 7, 3, 47, 3, -1, 1),
    Sketcher.Constraint("Symmetric", 9, 3, 49, 3, -1, 1),
    Sketcher.Constraint("Symmetric", 13, 3, 53, 3, -1, 1),
    Sketcher.Constraint("Symmetric", 15, 3, 55, 3, -1, 1),
    Sketcher.Constraint("Symmetric", 17, 3, 57, 3, -1, 1),
    Sketcher.Constraint("Symmetric", 19, 3, 59, 3, -1, 1),
    Sketcher.Constraint("Symmetric", 23, 3, 63, 3, -1, 1),
    Sketcher.Constraint("Symmetric", 25, 3, 65, 3, -1, 1),
    Sketcher.Constraint("Symmetric", 27, 3, 67, 3, -1, 1),
    Sketcher.Constraint("Symmetric", 29, 3, 69, 3, -1, 1),
    Sketcher.Constraint("Symmetric", 33, 3, 73, 3, -1, 1),
    Sketcher.Constraint("Symmetric", 35, 3, 75, 3, -1, 1),
    Sketcher.Constraint("Symmetric", 37, 3, 77, 3, -1, 1),
    Sketcher.Constraint("Symmetric", 39, 3, 79, 3, -1, 1),
    Sketcher.Constraint("Symmetric", 13, 3, 29, 3, -2),
    Sketcher.Constraint("Symmetric", 9, 3, 33, 3, -2),
    Sketcher.Constraint("Symmetric", 39, 2, 42, 2, -2),
    Sketcher.Constraint("Symmetric", 37, 2, 44, 2, -2),
    Sketcher.Constraint("Symmetric", 35, 2, 46, 2, -2),
    Sketcher.Constraint("Symmetric", 33, 2, 48, 2, -2),
    Sketcher.Constraint("Symmetric", 29, 2, 52, 2, -2),
    Sketcher.Constraint("Symmetric", 27, 2, 54, 2, -2),
    Sketcher.Constraint("Symmetric", 25, 2, 56, 2, -2),
    Sketcher.Constraint("Symmetric", 23, 2, 58, 2, -2),
    Sketcher.Constraint("Perpendicular", 0, 20),
    Sketcher.Constraint("Perpendicular", 2, 22),
    Sketcher.Constraint("Perpendicular", 4, 24),
    Sketcher.Constraint("Perpendicular", 6, 26),
    Sketcher.Constraint("Perpendicular", 8, 28),
    Sketcher.Constraint("Perpendicular", 10, 30),
    Sketcher.Constraint("Perpendicular", 12, 32),
    Sketcher.Constraint("Perpendicular", 14, 34),
    Sketcher.Constraint("Perpendicular", 16, 36),
    Sketcher.Constraint("Perpendicular", 18, 38),
    Sketcher.Constraint("Perpendicular", 20, 40),
    Sketcher.Constraint("Perpendicular", 22, 42),
    Sketcher.Constraint("Perpendicular", 24, 44),
    Sketcher.Constraint("Perpendicular", 26, 46),
    Sketcher.Constraint("Perpendicular", 28, 48),
    Sketcher.Constraint("Perpendicular", 30, 50),
    Sketcher.Constraint("Perpendicular", 32, 52),
    Sketcher.Constraint("Perpendicular", 34, 54),
    Sketcher.Constraint("Perpendicular", 36, 56),
    Sketcher.Constraint("Perpendicular", 38, 58),
    Sketcher.Constraint("Perpendicular", 40, 60),
    Sketcher.Constraint("Perpendicular", 42, 62),
    Sketcher.Constraint("Perpendicular", 44, 64),
    Sketcher.Constraint("Perpendicular", 46, 66),
    Sketcher.Constraint("Perpendicular", 48, 68),
    Sketcher.Constraint("Perpendicular", 50, 70),
    Sketcher.Constraint("Perpendicular", 52, 72),
    Sketcher.Constraint("Perpendicular", 54, 74),
    Sketcher.Constraint("Perpendicular", 56, 76),
    Sketcher.Constraint("Perpendicular", 58, 78),
    Sketcher.Constraint("Horizontal", 0, 2, 1, 2),
    Sketcher.Constraint("Horizontal", 40, 2, 41, 2),
    Sketcher.Constraint("Horizontal", 38, 2, 43, 2),
    Sketcher.Constraint("Horizontal", 36, 2, 45, 2),
    Sketcher.Constraint("Horizontal", 34, 2, 47, 2),
    Sketcher.Constraint("Horizontal", 32, 2, 49, 2),
    Sketcher.Constraint("Horizontal", 31, 2, 50, 2),
    Sketcher.Constraint("Horizontal", 22, 2, 59, 2),
    Sketcher.Constraint("Horizontal", 20, 2, 61, 2),
    Sketcher.Constraint("Horizontal", 18, 2, 63, 2),
    Sketcher.Constraint("Horizontal", 16, 2, 65, 2),
    Sketcher.Constraint("Horizontal", 14, 2, 67, 2),
    Sketcher.Constraint("Horizontal", 12, 2, 69, 2),
    Sketcher.Constraint("Horizontal", 10, 2, 71, 2),
    Sketcher.Constraint("Horizontal", 8, 2, 73, 2),
    Sketcher.Constraint("Horizontal", 6, 2, 75, 2),
    Sketcher.Constraint("Horizontal", 4, 2, 77, 2),
    Sketcher.Constraint("Vertical", 20, 2, 21, 2),
    Sketcher.Constraint("Vertical", 18, 2, 23, 2),
    Sketcher.Constraint("Vertical", 16, 2, 25, 2),
    Sketcher.Constraint("Vertical", 14, 2, 27, 2),
    Sketcher.Constraint("Vertical", 12, 2, 29, 2),
    Sketcher.Constraint("Vertical", 10, 2, 31, 2),
    Sketcher.Constraint("Vertical", 8, 2, 33, 2),
    Sketcher.Constraint("Vertical", 6, 2, 35, 2),
    Sketcher.Constraint("Vertical", 4, 2, 37, 2),
    Sketcher.Constraint("Vertical", 2, 2, 39, 2),
    Sketcher.Constraint("Equal", 2, 4),
    Sketcher.Constraint("Equal", 4, 6),
    Sketcher.Constraint("Equal", 6, 8),
    Sketcher.Constraint("Equal", 8, 10),
    Sketcher.Constraint("Equal", 10, 12),
    Sketcher.Constraint("Equal", 12, 14),
    Sketcher.Constraint("Equal", 14, 16),
    Sketcher.Constraint("Equal", 16, 18),
    Sketcher.Constraint("Equal", 18, 20),
    Sketcher.Constraint("Equal", 20, 22),
    Sketcher.Constraint("Equal", 22, 24),
    Sketcher.Constraint("Equal", 24, 26),
    Sketcher.Constraint("Equal", 26, 28),
    Sketcher.Constraint("Equal", 28, 30),
    Sketcher.Constraint("Equal", 32, 34),
    Sketcher.Constraint("Equal", 36, 38),
    Sketcher.Constraint("Radius", 1, Q("9 in")),
    Sketcher.Constraint("Diameter", 80, Q("5.9055 in")),
    Sketcher.Constraint("Radius", 11, Q("7.5 in")),
    Sketcher.Constraint("DistanceX", 2, 2, -1, 1, Q("1 in")),
    Sketcher.Constraint("DistanceY", 22, 2, -1, 1, Q("1 in")),
    Sketcher.Constraint("DistanceX", -1, 1, 0, 2, Q("0.5 in")),
    Sketcher.Constraint("Radius", 3, Q("7.4968 in")),
    Sketcher.Constraint("Radius", 19, Q("7.5032 in")),
    Sketcher.Constraint("DistanceY", -1, 1, 14, 2, Q("3.56 in")),
    Sketcher.Constraint("DistanceX", 34, 2, -1, 1, Q("3.56 in")),
    Sketcher.Constraint("Radius", 5, Q("228.576 mm")),
    Sketcher.Constraint("Radius", 7, Q("190.407 mm")),
    Sketcher.Constraint("Radius", 9, Q("228.6063 mm")),
    Sketcher.Constraint("Radius", 13, Q("228.5936 mm")),
    Sketcher.Constraint("Radius", 15, Q("190.593 mm")),
    Sketcher.Constraint("Radius", 17, Q("228.624 mm")),
    Sketcher.Constraint("DistanceX", 6, 2, -1, 1, Q("3.248 in")),
    Sketcher.Constraint("DistanceY", 26, 2, -1, 1, Q("3.248 in")),
    Sketcher.Constraint("DistanceY", -1, 1, 5, 3, Q("0.0009 in")),
    Sketcher.Constraint("DistanceY", 15, 3, -1, 1, Q("0.0017 in")),
    Sketcher.Constraint("DistanceX", -1, 1, 17, 3, Q("0.0009 in")),
    Sketcher.Constraint("DistanceX", -1, 1, 35, 3, Q("0.0017 in")),
    Sketcher.Constraint("DistanceY", -1, 1, 37, 3, Q("0.0009 in")),
    Sketcher.Constraint("DistanceY", -1, 1, 4, 2, Q("8.7008 in")),
    Sketcher.Constraint("DistanceX", 8, 2, -1, 1, Q("4.8774 in")),
    Sketcher.Constraint("DistanceY", -1, 1, 12, 2, Q("5.6864 in")),
    Sketcher.Constraint("DistanceX", 24, 2, -1, 1, Q("8.7008 in")),
    Sketcher.Constraint("Distance", 0, Q("41.4418 mm")),
    Sketcher.Constraint("DistanceX", 3, 3, -1, 1, Q("0.0118 mm")),
    Sketcher.Constraint("DistanceX", 5, 3, -1, 1, Q("0.0068 mm")),
])
sketch1.setExpression("Constraints[218]", "Params.sketch1_radius")
sketch1.setExpression("Constraints[220]", "Params.sketch1_radius2")
pad1 = doc.addObject("PartDesign::Pad", "Pad")
body.addObject(pad1)
pad1.Profile = sketch1
pad1.setExpression("Length", "Params.pad1_length")

doc.recompute()
